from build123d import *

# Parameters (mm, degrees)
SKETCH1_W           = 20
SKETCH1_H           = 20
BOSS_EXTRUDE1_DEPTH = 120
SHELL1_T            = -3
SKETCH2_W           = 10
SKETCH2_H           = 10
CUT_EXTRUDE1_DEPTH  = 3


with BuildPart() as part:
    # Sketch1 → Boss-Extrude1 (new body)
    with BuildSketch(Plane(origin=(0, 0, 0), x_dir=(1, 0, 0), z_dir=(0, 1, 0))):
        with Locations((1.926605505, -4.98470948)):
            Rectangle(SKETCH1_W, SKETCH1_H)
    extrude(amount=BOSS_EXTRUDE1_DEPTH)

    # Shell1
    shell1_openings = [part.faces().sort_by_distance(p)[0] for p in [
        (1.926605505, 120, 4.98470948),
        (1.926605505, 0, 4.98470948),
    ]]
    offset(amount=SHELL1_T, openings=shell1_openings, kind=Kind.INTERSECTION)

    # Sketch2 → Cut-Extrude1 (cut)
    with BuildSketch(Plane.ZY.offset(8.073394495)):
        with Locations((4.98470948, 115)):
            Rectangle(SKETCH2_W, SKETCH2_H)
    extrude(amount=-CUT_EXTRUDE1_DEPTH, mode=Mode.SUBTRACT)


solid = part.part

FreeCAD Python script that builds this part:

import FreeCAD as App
import Part
import Sketcher
from FreeCAD import Vector
Q = App.Units.Quantity


def faces_at(feature, points):
    """Names of the faces that lie closest to the given points."""
    faces = feature.Shape.Faces
    near = lambda p: min(range(len(faces)), key=lambda i: faces[i].distToShape(Part.Vertex(*p))[0])
    return sorted({f"Face{near(p) + 1}" for p in points})

doc = App.newDocument("Part")
params = doc.addObject("Spreadsheet::Sheet", "Params")
for row, (alias, value) in enumerate([
    ("sketch1_width", "20 mm"),
    ("pad1_length", "120 mm"),
    ("thickness_wall", "3 mm"),
    ("sketch2_width", "10 mm"),
    ("pocket1_length", "3 mm"),
], start=1):
    params.set(f"A{row}", alias)
    params.set(f"B{row}", "=" + value)
    params.setAlias(f"B{row}", alias)

body = doc.addObject("PartDesign::Body", "Body")

# Sketch on XZ plane
sketch1 = body.newObject("Sketcher::SketchObject", "Sketch")
sketch1.AttachmentSupport = (doc.getObject("XZ_Plane"), [""])
sketch1.MapMode = "FlatFace"
sketch1.addGeometry([
    Part.LineSegment(Vector(-8, -5, 0), Vector(-8, 15, 0)),
    Part.LineSegment(Vector(-8, 15, 0), Vector(12, 15, 0)),
    Part.LineSegment(Vector(12, 15, 0), Vector(12, -5, 0)),
    Part.LineSegment(Vector(12, -5, 0), Vector(-8, -5, 0)),
], False)
sketch1.addConstraint([
    Sketcher.Constraint("Coincident", 0, 2, 1, 1),
    Sketcher.Constraint("Coincident", 1, 2, 2, 1),
    Sketcher.Constraint("Coincident", 2, 2, 3, 1),
    Sketcher.Constraint("Coincident", 3, 2, 0, 1),
    Sketcher.Constraint("Vertical", 0),
    Sketcher.Constraint("Horizontal", 1),
    Sketcher.Constraint("Vertical", 2),
    Sketcher.Constraint("Horizontal", 3),
    Sketcher.Constraint("Equal", 3, 0),
    Sketcher.Constraint("DistanceX", 1, 1, 1, 2, Q("20 mm")),
    Sketcher.Constraint("DistanceY", -1, 1, 0, 2, Q("14.984709 mm")),
    Sketcher.Constraint("DistanceX", 0, 2, -1, 1, Q("8.073394 mm")),
])
sketch1.setExpression("Constraints[9]", "Params.sketch1_width")
pad1 = body.newObject("PartDesign::Pad", "Pad")
pad1.Profile = sketch1
pad1.setExpression("Length", "Params.pad1_length")
pad1.Reversed = True
doc.recompute()

thickness = body.newObject("PartDesign::Thickness", "Thickness")
thickness.Base = (pad1, faces_at(pad1, [(1.927, 120, 4.985), (1.927, 0, 4.985)]))
thickness.setExpression("Value", "Params.thickness_wall")
thickness.Reversed = True
thickness.Join = "Intersection"

# Sketch on YZ plane
sketch2 = body.newObject("Sketcher::SketchObject", "Sketch001")
sketch2.AttachmentSupport = (doc.getObject("YZ_Plane"), [""])
sketch2.MapMode = "FlatFace"
sketch2.AttachmentOffset = App.Placement(Vector(0, 0, -8.073394), App.Rotation())
sketch2.addGeometry([
    Part.LineSegment(Vector(120, 0, 0), Vector(110, 0, 0)),
    Part.LineSegment(Vector(110, 0, 0), Vector(110, 10, 0)),
    Part.LineSegment(Vector(110, 10, 0), Vector(120, 10, 0)),
    Part.LineSegment(Vector(120, 10, 0), Vector(120, 0, 0)),
], False)
sketch2.addConstraint([
    Sketcher.Constraint("Coincident", 0, 2, 1, 1),
    Sketcher.Constraint("Coincident", 1, 2, 2, 1),
    Sketcher.Constraint("Coincident", 2, 2, 3, 1),
    Sketcher.Constraint("Coincident", 3, 2, 0, 1),
    Sketcher.Constraint("Horizontal", 0),
    Sketcher.Constraint("Vertical", 1),
    Sketcher.Constraint("Horizontal", 2),
    Sketcher.Constraint("Vertical", 3),
    Sketcher.Constraint("Equal", 2, 1),
    Sketcher.Constraint("DistanceX", 0, 2, 0, 1, Q("10 mm")),
    Sketcher.Constraint("DistanceX", -1, 1, 0, 2, Q("110 mm")),
    Sketcher.Constraint("DistanceY", 0, 2, -1, 1, Q("0.015291 mm")),
])
sketch2.setExpression("Constraints[9]", "Params.sketch2_width")
pocket1 = body.newObject("PartDesign::Pocket", "Pocket")
pocket1.Profile = sketch2
pocket1.setExpression("Length", "Params.pocket1_length")
pocket1.Reversed = True

doc.recompute()
